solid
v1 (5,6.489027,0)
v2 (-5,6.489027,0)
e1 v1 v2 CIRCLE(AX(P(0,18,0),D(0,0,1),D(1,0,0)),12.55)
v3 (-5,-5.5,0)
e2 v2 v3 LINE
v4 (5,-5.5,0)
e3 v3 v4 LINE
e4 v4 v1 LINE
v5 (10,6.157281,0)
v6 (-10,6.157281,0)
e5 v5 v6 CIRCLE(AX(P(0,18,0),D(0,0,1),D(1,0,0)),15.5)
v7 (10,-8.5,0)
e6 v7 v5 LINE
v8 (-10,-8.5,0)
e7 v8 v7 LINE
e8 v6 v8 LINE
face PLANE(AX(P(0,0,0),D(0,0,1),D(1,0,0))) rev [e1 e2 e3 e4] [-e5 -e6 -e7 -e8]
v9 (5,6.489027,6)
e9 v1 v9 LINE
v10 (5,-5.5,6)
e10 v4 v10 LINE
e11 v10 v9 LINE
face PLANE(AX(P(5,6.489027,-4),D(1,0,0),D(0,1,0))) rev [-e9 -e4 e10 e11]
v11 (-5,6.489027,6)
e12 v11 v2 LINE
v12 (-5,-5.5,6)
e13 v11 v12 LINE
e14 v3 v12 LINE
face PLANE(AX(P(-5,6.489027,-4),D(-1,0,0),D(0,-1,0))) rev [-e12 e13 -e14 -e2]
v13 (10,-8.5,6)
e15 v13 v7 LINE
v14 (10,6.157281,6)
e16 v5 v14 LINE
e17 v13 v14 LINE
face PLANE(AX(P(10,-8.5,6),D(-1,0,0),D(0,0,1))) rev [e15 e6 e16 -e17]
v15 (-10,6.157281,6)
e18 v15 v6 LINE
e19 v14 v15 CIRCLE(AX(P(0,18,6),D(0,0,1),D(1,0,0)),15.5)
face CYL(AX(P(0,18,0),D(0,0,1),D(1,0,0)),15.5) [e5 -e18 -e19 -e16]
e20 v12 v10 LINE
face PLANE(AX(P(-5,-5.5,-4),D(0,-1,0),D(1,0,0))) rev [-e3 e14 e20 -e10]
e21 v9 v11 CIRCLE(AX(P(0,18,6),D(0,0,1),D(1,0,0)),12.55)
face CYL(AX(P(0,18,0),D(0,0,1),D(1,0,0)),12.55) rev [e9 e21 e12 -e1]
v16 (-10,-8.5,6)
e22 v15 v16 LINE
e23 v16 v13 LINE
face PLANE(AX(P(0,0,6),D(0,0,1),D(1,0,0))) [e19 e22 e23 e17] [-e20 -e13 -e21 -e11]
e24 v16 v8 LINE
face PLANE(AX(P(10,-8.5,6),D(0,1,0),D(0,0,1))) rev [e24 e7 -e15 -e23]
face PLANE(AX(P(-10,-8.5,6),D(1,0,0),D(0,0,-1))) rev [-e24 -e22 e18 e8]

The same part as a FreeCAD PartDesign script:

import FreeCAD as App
import Part
import Sketcher

V = App.Vector

doc = App.newDocument("Part")
body = doc.addObject("PartDesign::Body", "Body")

sketch1 = body.newObject("Sketcher::SketchObject", "Sketch")
sketch1.AttachmentSupport = (doc.getObject("XY_Plane"), [""])
sketch1.MapMode = "FlatFace"
sketch1.addGeometry([
    Part.LineSegment(V(-10, 8, 0), V(-10, -8, 0)),
    Part.LineSegment(V(-10, -8, 0), V(10, -8, 0)),
    Part.LineSegment(V(10, -8, 0), V(10, 8, 0)),
    Part.LineSegment(V(10, 8, 0), V(-10, 8, 0)),
], False)
sketch1.addConstraint([
    Sketcher.Constraint("Coincident", 0, 2, 1, 1),
    Sketcher.Constraint("Coincident", 1, 2, 2, 1),
    Sketcher.Constraint("Coincident", 2, 2, 3, 1),
    Sketcher.Constraint("Coincident", 3, 2, 0, 1),
    Sketcher.Constraint("Vertical", 0),
    Sketcher.Constraint("Horizontal", 1),
    Sketcher.Constraint("Vertical", 2),
    Sketcher.Constraint("Horizontal", 3),
    Sketcher.Constraint("Symmetric", 0, 2, 2, 2, -1, 1),
    Sketcher.Constraint("DistanceX", 1, 1, 1, 2, 20.0),
    Sketcher.Constraint("DistanceY", 0, 2, 0, 1, 17.0),
])
pad1 = body.newObject("PartDesign::Pad", "Pad")
pad1.Profile = sketch1
pad1.Length = 6

sketch2 = body.newObject("Sketcher::SketchObject", "Sketch001")
sketch2.AttachmentSupport = (doc.getObject("XY_Plane"), [""])
sketch2.MapMode = "FlatFace"
sketch2.AttachmentOffset = App.Placement(V(0, 0, 6), App.Rotation())
sketch2.addGeometry(Part.Circle(V(0, 18, 0), V(0, 0, 1), 16), False)
sketch2.addConstraint([
    Sketcher.Constraint("PointOnObject", 0, 3, -2),
    Sketcher.Constraint("Diameter", 0, 31.0),
    Sketcher.Constraint("DistanceY", -1, 1, 0, 3, 18.0),
])
pad2 = body.newObject("PartDesign::Pad", "Pad001")
pad2.Profile = sketch2
pad2.Length = 6
pad2.Reversed = True

sketch3 = body.newObject("Sketcher::SketchObject", "Sketch002")
sketch3.AttachmentSupport = (doc.getObject("XY_Plane"), [""])
sketch3.MapMode = "FlatFace"
sketch3.AttachmentOffset = App.Placement(V(0, 0, 6), App.Rotation())
sketch3.addGeometry(Part.Circle(V(0, 18, 0), V(0, 0, 1), 13), False)
sketch3.addConstraint([
    Sketcher.Constraint("PointOnObject", 0, 3, -2),
    Sketcher.Constraint("Diameter", 0, 25.1),
    Sketcher.Constraint("DistanceY", -1, 1, 0, 3, 18.0),
])
pocket1 = body.newObject("PartDesign::Pocket", "Pocket")
pocket1.Profile = sketch3
pocket1.Length = 6

sketch4 = body.newObject("Sketcher::SketchObject", "Sketch003")
sketch4.AttachmentSupport = (doc.getObject("XY_Plane"), [""])
sketch4.MapMode = "FlatFace"
sketch4.AttachmentOffset = App.Placement(V(0, 0, 6), App.Rotation())
sketch4.addGeometry([
    Part.LineSegment(V(-5, 6, 0), V(-5, -6, 0)),
    Part.LineSegment(V(-5, -6, 0), V(5, -6, 0)),
    Part.LineSegment(V(5, -6, 0), V(5, 6, 0)),
    Part.LineSegment(V(5, 6, 0), V(-5, 6, 0)),
], False)
sketch4.addConstraint([
    Sketcher.Constraint("Coincident", 0, 2, 1, 1),
    Sketcher.Constraint("Coincident", 1, 2, 2, 1),
    Sketcher.Constraint("Coincident", 2, 2, 3, 1),
    Sketcher.Constraint("Coincident", 3, 2, 0, 1),
    Sketcher.Constraint("Vertical", 0),
    Sketcher.Constraint("Horizontal", 1),
    Sketcher.Constraint("Vertical", 2),
    Sketcher.Constraint("Horizontal", 3),
    Sketcher.Constraint("DistanceX", 1, 1, 1, 2, 10.0),
    Sketcher.Constraint("DistanceX", 0, 2, -1, 1, 5.0),
    Sketcher.Constraint("DistanceY", 0, 2, -1, 1, 5.5),
    Sketcher.Constraint("DistanceY", 0, 2, 0, 1, 11.989027),
])
pocket2 = body.newObject("PartDesign::Pocket", "Pocket001")
pocket2.Profile = sketch4
pocket2.Length = 10

doc.recompute()
